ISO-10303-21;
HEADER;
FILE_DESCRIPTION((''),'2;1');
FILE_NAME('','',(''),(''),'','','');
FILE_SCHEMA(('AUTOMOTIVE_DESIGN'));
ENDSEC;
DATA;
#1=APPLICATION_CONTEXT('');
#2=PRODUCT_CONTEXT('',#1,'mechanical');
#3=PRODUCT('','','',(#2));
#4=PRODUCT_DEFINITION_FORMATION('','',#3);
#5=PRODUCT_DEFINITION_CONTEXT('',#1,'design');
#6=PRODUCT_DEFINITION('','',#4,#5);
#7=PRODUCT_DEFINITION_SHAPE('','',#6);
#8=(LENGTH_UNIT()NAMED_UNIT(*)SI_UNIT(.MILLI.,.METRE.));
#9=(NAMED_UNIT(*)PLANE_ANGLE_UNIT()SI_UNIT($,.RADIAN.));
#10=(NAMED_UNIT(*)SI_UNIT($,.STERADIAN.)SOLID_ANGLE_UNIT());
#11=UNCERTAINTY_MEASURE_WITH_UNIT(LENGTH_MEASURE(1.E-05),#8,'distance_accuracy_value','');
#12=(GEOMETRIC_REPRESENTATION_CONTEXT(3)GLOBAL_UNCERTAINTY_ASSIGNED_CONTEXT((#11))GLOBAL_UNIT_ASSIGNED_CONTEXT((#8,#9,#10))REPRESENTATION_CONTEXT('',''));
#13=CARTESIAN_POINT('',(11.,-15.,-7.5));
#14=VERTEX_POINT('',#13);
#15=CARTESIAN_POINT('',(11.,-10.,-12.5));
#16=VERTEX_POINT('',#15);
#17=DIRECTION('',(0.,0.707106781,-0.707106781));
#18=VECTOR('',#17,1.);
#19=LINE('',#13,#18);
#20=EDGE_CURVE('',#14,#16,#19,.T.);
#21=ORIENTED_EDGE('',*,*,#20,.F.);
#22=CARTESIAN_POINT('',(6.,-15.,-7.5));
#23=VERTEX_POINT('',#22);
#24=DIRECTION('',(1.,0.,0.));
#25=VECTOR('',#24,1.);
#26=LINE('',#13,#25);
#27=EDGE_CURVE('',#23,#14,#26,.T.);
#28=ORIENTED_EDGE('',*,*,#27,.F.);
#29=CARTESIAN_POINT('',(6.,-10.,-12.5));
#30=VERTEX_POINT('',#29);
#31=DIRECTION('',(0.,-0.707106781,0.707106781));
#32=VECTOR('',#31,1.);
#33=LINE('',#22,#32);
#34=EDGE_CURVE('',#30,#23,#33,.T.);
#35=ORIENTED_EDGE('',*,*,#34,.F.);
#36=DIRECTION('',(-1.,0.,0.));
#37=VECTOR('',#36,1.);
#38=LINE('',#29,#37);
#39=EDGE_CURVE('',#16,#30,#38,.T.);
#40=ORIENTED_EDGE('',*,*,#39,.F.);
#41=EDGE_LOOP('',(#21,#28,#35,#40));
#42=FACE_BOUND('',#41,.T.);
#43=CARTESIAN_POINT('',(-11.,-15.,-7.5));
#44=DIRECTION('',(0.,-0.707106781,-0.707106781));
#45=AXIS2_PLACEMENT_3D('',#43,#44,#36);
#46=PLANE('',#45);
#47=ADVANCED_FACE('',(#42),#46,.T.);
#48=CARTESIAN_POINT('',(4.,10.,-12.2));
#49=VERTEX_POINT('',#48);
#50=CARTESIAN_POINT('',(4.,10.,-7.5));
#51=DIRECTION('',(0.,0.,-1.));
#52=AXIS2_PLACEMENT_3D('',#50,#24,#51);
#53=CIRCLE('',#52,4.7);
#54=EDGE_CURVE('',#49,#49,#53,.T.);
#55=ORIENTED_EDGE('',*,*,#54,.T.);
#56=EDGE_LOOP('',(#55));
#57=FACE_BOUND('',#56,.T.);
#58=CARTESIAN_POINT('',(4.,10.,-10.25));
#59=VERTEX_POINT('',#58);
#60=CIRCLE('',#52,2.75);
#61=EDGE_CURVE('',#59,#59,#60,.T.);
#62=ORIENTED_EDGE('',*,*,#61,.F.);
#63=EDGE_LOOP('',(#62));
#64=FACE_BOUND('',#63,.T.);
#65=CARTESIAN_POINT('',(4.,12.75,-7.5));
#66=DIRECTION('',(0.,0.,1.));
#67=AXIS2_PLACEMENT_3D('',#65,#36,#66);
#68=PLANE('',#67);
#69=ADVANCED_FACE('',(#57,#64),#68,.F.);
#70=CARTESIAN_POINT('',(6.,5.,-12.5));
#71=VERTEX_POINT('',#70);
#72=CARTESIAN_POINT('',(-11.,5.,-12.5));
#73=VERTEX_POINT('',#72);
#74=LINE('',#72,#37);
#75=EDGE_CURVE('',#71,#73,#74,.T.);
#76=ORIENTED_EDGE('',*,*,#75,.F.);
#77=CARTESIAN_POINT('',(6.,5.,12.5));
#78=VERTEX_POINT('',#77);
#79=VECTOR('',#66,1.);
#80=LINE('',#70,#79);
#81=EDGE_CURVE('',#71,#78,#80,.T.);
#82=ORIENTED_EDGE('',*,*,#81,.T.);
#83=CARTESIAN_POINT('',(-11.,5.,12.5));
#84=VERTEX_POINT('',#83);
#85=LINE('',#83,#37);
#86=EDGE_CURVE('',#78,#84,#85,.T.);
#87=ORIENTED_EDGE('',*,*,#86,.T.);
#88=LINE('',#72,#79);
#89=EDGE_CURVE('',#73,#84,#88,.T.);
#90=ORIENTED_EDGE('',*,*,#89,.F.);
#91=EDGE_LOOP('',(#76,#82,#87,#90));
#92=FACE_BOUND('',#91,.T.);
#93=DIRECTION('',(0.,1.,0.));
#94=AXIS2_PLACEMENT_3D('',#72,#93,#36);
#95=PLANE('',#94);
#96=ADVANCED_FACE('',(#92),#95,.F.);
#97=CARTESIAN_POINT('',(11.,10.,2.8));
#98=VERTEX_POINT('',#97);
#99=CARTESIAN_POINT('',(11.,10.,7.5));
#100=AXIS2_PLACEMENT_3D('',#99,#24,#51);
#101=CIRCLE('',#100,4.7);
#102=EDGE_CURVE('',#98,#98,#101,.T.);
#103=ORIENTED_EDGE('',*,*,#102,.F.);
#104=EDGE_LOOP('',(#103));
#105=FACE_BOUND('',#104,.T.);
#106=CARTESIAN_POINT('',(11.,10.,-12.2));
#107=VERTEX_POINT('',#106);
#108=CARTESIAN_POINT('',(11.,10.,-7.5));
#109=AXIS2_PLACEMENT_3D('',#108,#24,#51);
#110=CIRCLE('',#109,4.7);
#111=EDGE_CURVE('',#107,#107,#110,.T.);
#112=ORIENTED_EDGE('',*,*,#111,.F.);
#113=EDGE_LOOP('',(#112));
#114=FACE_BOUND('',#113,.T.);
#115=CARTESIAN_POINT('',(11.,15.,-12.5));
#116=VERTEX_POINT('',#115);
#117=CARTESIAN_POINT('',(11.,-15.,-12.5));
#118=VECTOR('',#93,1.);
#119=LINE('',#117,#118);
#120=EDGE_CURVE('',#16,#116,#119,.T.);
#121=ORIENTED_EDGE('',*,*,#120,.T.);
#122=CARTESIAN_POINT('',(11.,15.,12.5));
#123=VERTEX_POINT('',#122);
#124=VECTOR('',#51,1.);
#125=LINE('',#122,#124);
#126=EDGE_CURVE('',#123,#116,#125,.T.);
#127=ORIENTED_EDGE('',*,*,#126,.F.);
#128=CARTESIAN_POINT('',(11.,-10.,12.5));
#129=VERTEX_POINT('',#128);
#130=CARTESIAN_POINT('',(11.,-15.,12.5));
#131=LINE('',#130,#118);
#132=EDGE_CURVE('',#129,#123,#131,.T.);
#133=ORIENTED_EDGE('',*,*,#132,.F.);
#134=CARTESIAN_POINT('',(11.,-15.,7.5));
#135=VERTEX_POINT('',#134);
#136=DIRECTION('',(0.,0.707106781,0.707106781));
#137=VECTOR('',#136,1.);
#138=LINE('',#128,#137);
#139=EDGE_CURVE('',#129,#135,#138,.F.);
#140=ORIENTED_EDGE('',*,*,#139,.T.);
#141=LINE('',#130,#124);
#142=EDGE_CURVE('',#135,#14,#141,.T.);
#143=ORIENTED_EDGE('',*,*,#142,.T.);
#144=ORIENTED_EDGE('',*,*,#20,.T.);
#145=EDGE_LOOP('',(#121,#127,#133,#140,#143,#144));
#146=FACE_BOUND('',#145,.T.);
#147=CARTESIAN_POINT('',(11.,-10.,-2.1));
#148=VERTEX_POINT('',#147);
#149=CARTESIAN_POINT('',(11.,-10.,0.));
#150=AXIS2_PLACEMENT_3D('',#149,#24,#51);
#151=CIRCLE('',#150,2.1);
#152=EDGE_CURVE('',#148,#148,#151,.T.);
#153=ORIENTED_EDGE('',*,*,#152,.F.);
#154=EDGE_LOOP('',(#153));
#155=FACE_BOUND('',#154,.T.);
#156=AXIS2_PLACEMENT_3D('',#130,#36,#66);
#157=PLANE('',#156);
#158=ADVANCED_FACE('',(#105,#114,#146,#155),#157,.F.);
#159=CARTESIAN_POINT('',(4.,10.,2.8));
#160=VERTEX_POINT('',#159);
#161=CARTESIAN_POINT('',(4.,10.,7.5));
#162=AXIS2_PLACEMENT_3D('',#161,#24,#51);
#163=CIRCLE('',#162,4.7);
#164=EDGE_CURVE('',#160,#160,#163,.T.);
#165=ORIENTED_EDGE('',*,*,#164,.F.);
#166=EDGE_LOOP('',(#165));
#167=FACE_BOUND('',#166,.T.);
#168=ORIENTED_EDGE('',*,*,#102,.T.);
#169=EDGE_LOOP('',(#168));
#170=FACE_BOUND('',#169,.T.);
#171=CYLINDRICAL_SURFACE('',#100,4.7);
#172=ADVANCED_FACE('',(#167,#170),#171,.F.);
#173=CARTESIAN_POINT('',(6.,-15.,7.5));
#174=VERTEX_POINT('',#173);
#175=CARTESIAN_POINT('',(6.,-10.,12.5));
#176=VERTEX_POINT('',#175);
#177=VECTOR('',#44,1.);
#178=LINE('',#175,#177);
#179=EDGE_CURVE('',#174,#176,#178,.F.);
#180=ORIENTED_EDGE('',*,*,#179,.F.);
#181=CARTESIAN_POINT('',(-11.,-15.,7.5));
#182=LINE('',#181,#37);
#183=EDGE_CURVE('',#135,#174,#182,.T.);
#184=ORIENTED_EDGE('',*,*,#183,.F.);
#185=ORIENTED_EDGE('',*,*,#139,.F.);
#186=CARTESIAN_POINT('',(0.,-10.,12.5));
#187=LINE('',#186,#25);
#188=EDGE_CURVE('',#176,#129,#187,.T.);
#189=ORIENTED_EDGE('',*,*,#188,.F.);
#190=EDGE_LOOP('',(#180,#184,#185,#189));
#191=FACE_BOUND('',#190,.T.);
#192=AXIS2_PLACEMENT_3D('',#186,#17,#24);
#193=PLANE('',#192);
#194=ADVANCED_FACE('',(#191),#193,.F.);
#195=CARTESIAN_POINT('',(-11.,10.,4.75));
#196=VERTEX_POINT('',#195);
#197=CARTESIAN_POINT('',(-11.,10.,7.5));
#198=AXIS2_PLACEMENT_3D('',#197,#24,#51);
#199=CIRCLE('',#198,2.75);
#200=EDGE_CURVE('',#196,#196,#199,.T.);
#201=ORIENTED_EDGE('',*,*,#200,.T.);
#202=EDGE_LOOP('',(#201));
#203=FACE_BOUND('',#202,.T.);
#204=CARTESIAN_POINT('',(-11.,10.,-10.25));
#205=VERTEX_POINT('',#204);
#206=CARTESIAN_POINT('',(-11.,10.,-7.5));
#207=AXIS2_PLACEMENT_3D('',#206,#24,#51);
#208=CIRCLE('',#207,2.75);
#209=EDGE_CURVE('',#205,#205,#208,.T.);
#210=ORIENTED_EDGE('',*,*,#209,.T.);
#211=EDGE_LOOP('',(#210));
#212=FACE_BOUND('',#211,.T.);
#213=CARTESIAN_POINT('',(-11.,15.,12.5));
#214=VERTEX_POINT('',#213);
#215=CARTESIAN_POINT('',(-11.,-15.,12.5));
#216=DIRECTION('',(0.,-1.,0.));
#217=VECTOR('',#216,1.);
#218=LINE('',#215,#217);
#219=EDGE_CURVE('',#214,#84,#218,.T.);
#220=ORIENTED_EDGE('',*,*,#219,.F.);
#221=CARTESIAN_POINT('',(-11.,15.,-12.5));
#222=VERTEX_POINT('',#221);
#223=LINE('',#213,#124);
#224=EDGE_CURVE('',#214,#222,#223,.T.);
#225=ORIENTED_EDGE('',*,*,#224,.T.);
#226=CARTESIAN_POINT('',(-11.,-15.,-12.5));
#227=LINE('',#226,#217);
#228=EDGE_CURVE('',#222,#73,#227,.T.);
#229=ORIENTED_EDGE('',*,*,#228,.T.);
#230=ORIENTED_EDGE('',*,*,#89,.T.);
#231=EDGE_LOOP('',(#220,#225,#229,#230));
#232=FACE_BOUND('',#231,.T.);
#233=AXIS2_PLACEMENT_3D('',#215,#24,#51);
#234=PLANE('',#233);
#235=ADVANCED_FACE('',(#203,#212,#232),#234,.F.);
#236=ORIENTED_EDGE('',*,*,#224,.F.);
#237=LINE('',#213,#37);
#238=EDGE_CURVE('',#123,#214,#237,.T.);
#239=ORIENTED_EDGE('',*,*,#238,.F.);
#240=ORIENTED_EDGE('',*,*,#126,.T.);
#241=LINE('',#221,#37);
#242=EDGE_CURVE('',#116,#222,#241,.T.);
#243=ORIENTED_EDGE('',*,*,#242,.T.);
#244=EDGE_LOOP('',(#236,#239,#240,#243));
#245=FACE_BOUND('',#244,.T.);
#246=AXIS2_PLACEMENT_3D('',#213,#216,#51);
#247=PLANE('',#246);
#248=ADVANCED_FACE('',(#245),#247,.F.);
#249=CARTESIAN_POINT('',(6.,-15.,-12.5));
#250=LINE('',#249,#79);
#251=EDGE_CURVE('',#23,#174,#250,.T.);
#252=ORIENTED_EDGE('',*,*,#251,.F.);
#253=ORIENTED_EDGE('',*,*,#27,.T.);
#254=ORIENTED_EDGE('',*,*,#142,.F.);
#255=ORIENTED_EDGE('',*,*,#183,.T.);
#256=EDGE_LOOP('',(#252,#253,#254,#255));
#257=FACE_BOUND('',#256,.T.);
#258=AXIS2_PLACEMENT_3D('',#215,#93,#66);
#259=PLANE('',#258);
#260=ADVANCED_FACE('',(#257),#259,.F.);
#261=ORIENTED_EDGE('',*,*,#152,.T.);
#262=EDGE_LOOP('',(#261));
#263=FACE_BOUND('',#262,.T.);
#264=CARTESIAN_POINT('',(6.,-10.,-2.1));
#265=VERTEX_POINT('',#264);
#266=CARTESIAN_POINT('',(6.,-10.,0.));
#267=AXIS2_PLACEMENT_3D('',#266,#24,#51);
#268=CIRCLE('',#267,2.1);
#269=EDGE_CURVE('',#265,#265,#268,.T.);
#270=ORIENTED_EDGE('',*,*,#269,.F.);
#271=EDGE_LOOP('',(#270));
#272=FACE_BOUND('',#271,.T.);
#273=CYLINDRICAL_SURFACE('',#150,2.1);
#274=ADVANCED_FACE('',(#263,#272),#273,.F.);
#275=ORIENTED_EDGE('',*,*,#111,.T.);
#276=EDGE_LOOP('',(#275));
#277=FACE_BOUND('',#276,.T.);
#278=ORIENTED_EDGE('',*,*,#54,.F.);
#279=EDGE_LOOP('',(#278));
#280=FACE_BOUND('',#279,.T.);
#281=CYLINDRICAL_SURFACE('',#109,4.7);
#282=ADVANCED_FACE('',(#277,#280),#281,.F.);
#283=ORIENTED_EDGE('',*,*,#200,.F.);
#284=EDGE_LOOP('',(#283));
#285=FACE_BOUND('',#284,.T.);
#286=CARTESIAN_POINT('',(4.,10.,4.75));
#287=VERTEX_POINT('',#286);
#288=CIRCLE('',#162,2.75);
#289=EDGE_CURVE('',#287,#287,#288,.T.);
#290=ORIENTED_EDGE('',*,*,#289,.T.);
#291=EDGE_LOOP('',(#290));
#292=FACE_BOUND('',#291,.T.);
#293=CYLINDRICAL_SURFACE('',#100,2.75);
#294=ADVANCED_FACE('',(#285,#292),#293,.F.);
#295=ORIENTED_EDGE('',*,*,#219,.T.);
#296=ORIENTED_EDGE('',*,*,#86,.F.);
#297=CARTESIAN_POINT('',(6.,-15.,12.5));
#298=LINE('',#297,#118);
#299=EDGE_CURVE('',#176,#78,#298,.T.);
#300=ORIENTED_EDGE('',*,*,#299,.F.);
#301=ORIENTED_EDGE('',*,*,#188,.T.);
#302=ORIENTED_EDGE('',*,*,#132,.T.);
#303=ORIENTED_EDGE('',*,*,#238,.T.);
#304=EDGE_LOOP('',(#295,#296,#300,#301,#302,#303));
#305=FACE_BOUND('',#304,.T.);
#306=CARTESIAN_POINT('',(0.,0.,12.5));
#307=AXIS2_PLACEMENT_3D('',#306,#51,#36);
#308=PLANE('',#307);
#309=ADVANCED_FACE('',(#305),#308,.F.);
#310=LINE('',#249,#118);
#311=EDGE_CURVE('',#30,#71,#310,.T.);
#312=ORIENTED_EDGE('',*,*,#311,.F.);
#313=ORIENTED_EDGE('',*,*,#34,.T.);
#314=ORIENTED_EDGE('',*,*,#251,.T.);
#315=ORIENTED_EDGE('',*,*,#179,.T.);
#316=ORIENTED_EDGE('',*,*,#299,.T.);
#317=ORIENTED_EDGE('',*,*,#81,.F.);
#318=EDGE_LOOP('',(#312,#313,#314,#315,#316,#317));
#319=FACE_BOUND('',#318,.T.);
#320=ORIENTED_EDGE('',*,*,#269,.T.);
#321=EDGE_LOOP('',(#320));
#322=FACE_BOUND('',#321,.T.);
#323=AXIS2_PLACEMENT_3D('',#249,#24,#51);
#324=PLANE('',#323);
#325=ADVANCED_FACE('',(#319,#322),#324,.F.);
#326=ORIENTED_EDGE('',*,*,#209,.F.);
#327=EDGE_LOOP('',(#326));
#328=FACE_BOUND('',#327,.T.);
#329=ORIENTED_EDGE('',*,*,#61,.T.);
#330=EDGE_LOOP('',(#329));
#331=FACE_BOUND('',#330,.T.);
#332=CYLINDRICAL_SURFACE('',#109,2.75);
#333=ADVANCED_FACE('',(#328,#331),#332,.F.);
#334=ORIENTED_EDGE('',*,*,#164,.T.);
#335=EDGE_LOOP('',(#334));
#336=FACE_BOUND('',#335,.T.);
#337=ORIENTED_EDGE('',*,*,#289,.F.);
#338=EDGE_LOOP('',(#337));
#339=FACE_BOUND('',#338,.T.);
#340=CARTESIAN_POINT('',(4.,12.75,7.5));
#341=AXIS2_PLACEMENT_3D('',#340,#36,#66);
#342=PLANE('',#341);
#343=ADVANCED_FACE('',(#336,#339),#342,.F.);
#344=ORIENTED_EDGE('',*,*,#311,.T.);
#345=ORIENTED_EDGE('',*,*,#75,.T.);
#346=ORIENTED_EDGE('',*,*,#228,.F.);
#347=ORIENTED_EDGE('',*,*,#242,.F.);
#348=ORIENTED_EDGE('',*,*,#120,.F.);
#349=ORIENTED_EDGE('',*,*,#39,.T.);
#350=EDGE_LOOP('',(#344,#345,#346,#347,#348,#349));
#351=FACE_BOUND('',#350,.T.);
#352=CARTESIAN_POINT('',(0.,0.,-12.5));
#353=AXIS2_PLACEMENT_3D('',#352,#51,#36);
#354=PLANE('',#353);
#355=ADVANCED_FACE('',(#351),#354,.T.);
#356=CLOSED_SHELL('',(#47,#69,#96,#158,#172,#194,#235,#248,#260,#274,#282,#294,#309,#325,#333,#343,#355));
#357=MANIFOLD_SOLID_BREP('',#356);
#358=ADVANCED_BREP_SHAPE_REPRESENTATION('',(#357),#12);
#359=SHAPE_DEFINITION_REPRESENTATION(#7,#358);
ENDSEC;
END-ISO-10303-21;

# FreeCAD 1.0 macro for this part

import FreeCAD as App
import Part
import Sketcher

V = App.Vector


def edges_at(feature, points):
    """Names of the edges that pass closest to the given points."""
    edges = feature.Shape.Edges
    near = lambda p: min(range(len(edges)), key=lambda i: edges[i].distToShape(Part.Vertex(*p))[0])
    return sorted({f"Edge{near(p) + 1}" for p in points})


def add_polygon(sketch, points):
    """Adds a closed chain of lines whose ends are joined by coincident constraints."""
    first, n = sketch.GeometryCount, len(points)
    for a, b in zip(points, points[1:] + points[:1]):
        sketch.addGeometry(Part.LineSegment(App.Vector(*a, 0), App.Vector(*b, 0)), False)
    for i in range(n):
        sketch.addConstraint(Sketcher.Constraint("Coincident", first + i, 2, first + (i + 1) % n, 1))

doc = App.newDocument("Part")
body = doc.addObject("PartDesign::Body", "Body")

sketch1 = body.newObject("Sketcher::SketchObject", "Sketch")
sketch1.AttachmentSupport = (doc.getObject("XY_Plane"), [""])
sketch1.MapMode = "FlatFace"
add_polygon(sketch1, [(-11, 15), (-11, -15), (11, -15), (11, 15)])
sketch1.addConstraint([
    Sketcher.Constraint("Vertical", 0),
    Sketcher.Constraint("Horizontal", 1),
    Sketcher.Constraint("Vertical", 2),
    Sketcher.Constraint("Horizontal", 3),
    Sketcher.Constraint("Symmetric", 0, 2, 2, 2, -1, 1),
    Sketcher.Constraint("DistanceX", 1, 1, 1, 2, 22.0),
    Sketcher.Constraint("DistanceY", 0, 2, 0, 1, 30.0),
])
pad1 = body.newObject("PartDesign::Pad", "Pad")
pad1.Profile = sketch1
pad1.Length = 25
pad1.Midplane = True

sketch2 = body.newObject("Sketcher::SketchObject", "Sketch001")
sketch2.AttachmentSupport = (doc.getObject("XY_Plane"), [""])
sketch2.MapMode = "FlatFace"
sketch2.AttachmentOffset = App.Placement(V(0, 0, 12.5), App.Rotation())
add_polygon(sketch2, [(-11, 5), (-11, -15), (6, -15), (6, 5)])
sketch2.addConstraint([
    Sketcher.Constraint("Vertical", 0),
    Sketcher.Constraint("Horizontal", 1),
    Sketcher.Constraint("Vertical", 2),
    Sketcher.Constraint("Horizontal", 3),
    Sketcher.Constraint("DistanceX", 1, 1, 1, 2, 17.0),
    Sketcher.Constraint("DistanceY", 0, 2, 0, 1, 20.0),
    Sketcher.Constraint("DistanceX", 0, 2, -1, 1, 11.0),
    Sketcher.Constraint("DistanceY", 0, 2, -1, 1, 15.0),
])
pocket1 = body.newObject("PartDesign::Pocket", "Pocket")
pocket1.Profile = sketch2
pocket1.Type = "ThroughAll"

sketch3 = body.newObject("Sketcher::SketchObject", "Sketch002")
sketch3.AttachmentSupport = (doc.getObject("YZ_Plane"), [""])
sketch3.MapMode = "FlatFace"
sketch3.AttachmentOffset = App.Placement(V(0, 0, 11), App.Rotation())
sketch3.addGeometry([
    Part.Circle(V(10, -7.5, 0), V(0, 0, 1), 2.8),
    Part.Circle(V(10, 7.5, 0), V(0, 0, 1), 2.8),
], False)
sketch3.addConstraint([
    Sketcher.Constraint("Equal", 0, 1),
    Sketcher.Constraint("Symmetric", 0, 3, 1, 3, -1),
    Sketcher.Constraint("Diameter", 0, 5.5),
    Sketcher.Constraint("DistanceX", -1, 1, 0, 3, 10.0),
    Sketcher.Constraint("DistanceY", 0, 3, 1, 3, 15.0),
])
doc.recompute()
hole = body.newObject("PartDesign::Hole", "Hole")
hole.Profile = sketch3
hole.ThreadType = "None"
hole.Diameter = 5.5
hole.DepthType = "ThroughAll"
hole.HoleCutType = "Counterbore"
hole.HoleCutDiameter = 9.4
hole.HoleCutDepth = 7

sketch4 = body.newObject("Sketcher::SketchObject", "Sketch003")
sketch4.AttachmentSupport = (doc.getObject("YZ_Plane"), [""])
sketch4.MapMode = "FlatFace"
sketch4.AttachmentOffset = App.Placement(V(0, 0, 11), App.Rotation())
sketch4.addGeometry(Part.Circle(V(-10, 0, 0), V(0, 0, 1), 2.1), False)
sketch4.addConstraint([
    Sketcher.Constraint("PointOnObject", 0, 3, -1),
    Sketcher.Constraint("Diameter", 0, 4.2),
    Sketcher.Constraint("DistanceX", 0, 3, -1, 1, 10.0),
])
doc.recompute()
hole2 = body.newObject("PartDesign::Hole", "Hole001")
hole2.Profile = sketch4
hole2.ThreadType = "None"
hole2.Diameter = 4.2
hole2.DepthType = "ThroughAll"
doc.recompute()

chamfer = body.newObject("PartDesign::Chamfer", "Chamfer")
chamfer.Base = (hole2, edges_at(hole2, [(8.5, -15, -12.5), (8.5, -15, 12.5)]))
chamfer.Size = 5

doc.recompute()
